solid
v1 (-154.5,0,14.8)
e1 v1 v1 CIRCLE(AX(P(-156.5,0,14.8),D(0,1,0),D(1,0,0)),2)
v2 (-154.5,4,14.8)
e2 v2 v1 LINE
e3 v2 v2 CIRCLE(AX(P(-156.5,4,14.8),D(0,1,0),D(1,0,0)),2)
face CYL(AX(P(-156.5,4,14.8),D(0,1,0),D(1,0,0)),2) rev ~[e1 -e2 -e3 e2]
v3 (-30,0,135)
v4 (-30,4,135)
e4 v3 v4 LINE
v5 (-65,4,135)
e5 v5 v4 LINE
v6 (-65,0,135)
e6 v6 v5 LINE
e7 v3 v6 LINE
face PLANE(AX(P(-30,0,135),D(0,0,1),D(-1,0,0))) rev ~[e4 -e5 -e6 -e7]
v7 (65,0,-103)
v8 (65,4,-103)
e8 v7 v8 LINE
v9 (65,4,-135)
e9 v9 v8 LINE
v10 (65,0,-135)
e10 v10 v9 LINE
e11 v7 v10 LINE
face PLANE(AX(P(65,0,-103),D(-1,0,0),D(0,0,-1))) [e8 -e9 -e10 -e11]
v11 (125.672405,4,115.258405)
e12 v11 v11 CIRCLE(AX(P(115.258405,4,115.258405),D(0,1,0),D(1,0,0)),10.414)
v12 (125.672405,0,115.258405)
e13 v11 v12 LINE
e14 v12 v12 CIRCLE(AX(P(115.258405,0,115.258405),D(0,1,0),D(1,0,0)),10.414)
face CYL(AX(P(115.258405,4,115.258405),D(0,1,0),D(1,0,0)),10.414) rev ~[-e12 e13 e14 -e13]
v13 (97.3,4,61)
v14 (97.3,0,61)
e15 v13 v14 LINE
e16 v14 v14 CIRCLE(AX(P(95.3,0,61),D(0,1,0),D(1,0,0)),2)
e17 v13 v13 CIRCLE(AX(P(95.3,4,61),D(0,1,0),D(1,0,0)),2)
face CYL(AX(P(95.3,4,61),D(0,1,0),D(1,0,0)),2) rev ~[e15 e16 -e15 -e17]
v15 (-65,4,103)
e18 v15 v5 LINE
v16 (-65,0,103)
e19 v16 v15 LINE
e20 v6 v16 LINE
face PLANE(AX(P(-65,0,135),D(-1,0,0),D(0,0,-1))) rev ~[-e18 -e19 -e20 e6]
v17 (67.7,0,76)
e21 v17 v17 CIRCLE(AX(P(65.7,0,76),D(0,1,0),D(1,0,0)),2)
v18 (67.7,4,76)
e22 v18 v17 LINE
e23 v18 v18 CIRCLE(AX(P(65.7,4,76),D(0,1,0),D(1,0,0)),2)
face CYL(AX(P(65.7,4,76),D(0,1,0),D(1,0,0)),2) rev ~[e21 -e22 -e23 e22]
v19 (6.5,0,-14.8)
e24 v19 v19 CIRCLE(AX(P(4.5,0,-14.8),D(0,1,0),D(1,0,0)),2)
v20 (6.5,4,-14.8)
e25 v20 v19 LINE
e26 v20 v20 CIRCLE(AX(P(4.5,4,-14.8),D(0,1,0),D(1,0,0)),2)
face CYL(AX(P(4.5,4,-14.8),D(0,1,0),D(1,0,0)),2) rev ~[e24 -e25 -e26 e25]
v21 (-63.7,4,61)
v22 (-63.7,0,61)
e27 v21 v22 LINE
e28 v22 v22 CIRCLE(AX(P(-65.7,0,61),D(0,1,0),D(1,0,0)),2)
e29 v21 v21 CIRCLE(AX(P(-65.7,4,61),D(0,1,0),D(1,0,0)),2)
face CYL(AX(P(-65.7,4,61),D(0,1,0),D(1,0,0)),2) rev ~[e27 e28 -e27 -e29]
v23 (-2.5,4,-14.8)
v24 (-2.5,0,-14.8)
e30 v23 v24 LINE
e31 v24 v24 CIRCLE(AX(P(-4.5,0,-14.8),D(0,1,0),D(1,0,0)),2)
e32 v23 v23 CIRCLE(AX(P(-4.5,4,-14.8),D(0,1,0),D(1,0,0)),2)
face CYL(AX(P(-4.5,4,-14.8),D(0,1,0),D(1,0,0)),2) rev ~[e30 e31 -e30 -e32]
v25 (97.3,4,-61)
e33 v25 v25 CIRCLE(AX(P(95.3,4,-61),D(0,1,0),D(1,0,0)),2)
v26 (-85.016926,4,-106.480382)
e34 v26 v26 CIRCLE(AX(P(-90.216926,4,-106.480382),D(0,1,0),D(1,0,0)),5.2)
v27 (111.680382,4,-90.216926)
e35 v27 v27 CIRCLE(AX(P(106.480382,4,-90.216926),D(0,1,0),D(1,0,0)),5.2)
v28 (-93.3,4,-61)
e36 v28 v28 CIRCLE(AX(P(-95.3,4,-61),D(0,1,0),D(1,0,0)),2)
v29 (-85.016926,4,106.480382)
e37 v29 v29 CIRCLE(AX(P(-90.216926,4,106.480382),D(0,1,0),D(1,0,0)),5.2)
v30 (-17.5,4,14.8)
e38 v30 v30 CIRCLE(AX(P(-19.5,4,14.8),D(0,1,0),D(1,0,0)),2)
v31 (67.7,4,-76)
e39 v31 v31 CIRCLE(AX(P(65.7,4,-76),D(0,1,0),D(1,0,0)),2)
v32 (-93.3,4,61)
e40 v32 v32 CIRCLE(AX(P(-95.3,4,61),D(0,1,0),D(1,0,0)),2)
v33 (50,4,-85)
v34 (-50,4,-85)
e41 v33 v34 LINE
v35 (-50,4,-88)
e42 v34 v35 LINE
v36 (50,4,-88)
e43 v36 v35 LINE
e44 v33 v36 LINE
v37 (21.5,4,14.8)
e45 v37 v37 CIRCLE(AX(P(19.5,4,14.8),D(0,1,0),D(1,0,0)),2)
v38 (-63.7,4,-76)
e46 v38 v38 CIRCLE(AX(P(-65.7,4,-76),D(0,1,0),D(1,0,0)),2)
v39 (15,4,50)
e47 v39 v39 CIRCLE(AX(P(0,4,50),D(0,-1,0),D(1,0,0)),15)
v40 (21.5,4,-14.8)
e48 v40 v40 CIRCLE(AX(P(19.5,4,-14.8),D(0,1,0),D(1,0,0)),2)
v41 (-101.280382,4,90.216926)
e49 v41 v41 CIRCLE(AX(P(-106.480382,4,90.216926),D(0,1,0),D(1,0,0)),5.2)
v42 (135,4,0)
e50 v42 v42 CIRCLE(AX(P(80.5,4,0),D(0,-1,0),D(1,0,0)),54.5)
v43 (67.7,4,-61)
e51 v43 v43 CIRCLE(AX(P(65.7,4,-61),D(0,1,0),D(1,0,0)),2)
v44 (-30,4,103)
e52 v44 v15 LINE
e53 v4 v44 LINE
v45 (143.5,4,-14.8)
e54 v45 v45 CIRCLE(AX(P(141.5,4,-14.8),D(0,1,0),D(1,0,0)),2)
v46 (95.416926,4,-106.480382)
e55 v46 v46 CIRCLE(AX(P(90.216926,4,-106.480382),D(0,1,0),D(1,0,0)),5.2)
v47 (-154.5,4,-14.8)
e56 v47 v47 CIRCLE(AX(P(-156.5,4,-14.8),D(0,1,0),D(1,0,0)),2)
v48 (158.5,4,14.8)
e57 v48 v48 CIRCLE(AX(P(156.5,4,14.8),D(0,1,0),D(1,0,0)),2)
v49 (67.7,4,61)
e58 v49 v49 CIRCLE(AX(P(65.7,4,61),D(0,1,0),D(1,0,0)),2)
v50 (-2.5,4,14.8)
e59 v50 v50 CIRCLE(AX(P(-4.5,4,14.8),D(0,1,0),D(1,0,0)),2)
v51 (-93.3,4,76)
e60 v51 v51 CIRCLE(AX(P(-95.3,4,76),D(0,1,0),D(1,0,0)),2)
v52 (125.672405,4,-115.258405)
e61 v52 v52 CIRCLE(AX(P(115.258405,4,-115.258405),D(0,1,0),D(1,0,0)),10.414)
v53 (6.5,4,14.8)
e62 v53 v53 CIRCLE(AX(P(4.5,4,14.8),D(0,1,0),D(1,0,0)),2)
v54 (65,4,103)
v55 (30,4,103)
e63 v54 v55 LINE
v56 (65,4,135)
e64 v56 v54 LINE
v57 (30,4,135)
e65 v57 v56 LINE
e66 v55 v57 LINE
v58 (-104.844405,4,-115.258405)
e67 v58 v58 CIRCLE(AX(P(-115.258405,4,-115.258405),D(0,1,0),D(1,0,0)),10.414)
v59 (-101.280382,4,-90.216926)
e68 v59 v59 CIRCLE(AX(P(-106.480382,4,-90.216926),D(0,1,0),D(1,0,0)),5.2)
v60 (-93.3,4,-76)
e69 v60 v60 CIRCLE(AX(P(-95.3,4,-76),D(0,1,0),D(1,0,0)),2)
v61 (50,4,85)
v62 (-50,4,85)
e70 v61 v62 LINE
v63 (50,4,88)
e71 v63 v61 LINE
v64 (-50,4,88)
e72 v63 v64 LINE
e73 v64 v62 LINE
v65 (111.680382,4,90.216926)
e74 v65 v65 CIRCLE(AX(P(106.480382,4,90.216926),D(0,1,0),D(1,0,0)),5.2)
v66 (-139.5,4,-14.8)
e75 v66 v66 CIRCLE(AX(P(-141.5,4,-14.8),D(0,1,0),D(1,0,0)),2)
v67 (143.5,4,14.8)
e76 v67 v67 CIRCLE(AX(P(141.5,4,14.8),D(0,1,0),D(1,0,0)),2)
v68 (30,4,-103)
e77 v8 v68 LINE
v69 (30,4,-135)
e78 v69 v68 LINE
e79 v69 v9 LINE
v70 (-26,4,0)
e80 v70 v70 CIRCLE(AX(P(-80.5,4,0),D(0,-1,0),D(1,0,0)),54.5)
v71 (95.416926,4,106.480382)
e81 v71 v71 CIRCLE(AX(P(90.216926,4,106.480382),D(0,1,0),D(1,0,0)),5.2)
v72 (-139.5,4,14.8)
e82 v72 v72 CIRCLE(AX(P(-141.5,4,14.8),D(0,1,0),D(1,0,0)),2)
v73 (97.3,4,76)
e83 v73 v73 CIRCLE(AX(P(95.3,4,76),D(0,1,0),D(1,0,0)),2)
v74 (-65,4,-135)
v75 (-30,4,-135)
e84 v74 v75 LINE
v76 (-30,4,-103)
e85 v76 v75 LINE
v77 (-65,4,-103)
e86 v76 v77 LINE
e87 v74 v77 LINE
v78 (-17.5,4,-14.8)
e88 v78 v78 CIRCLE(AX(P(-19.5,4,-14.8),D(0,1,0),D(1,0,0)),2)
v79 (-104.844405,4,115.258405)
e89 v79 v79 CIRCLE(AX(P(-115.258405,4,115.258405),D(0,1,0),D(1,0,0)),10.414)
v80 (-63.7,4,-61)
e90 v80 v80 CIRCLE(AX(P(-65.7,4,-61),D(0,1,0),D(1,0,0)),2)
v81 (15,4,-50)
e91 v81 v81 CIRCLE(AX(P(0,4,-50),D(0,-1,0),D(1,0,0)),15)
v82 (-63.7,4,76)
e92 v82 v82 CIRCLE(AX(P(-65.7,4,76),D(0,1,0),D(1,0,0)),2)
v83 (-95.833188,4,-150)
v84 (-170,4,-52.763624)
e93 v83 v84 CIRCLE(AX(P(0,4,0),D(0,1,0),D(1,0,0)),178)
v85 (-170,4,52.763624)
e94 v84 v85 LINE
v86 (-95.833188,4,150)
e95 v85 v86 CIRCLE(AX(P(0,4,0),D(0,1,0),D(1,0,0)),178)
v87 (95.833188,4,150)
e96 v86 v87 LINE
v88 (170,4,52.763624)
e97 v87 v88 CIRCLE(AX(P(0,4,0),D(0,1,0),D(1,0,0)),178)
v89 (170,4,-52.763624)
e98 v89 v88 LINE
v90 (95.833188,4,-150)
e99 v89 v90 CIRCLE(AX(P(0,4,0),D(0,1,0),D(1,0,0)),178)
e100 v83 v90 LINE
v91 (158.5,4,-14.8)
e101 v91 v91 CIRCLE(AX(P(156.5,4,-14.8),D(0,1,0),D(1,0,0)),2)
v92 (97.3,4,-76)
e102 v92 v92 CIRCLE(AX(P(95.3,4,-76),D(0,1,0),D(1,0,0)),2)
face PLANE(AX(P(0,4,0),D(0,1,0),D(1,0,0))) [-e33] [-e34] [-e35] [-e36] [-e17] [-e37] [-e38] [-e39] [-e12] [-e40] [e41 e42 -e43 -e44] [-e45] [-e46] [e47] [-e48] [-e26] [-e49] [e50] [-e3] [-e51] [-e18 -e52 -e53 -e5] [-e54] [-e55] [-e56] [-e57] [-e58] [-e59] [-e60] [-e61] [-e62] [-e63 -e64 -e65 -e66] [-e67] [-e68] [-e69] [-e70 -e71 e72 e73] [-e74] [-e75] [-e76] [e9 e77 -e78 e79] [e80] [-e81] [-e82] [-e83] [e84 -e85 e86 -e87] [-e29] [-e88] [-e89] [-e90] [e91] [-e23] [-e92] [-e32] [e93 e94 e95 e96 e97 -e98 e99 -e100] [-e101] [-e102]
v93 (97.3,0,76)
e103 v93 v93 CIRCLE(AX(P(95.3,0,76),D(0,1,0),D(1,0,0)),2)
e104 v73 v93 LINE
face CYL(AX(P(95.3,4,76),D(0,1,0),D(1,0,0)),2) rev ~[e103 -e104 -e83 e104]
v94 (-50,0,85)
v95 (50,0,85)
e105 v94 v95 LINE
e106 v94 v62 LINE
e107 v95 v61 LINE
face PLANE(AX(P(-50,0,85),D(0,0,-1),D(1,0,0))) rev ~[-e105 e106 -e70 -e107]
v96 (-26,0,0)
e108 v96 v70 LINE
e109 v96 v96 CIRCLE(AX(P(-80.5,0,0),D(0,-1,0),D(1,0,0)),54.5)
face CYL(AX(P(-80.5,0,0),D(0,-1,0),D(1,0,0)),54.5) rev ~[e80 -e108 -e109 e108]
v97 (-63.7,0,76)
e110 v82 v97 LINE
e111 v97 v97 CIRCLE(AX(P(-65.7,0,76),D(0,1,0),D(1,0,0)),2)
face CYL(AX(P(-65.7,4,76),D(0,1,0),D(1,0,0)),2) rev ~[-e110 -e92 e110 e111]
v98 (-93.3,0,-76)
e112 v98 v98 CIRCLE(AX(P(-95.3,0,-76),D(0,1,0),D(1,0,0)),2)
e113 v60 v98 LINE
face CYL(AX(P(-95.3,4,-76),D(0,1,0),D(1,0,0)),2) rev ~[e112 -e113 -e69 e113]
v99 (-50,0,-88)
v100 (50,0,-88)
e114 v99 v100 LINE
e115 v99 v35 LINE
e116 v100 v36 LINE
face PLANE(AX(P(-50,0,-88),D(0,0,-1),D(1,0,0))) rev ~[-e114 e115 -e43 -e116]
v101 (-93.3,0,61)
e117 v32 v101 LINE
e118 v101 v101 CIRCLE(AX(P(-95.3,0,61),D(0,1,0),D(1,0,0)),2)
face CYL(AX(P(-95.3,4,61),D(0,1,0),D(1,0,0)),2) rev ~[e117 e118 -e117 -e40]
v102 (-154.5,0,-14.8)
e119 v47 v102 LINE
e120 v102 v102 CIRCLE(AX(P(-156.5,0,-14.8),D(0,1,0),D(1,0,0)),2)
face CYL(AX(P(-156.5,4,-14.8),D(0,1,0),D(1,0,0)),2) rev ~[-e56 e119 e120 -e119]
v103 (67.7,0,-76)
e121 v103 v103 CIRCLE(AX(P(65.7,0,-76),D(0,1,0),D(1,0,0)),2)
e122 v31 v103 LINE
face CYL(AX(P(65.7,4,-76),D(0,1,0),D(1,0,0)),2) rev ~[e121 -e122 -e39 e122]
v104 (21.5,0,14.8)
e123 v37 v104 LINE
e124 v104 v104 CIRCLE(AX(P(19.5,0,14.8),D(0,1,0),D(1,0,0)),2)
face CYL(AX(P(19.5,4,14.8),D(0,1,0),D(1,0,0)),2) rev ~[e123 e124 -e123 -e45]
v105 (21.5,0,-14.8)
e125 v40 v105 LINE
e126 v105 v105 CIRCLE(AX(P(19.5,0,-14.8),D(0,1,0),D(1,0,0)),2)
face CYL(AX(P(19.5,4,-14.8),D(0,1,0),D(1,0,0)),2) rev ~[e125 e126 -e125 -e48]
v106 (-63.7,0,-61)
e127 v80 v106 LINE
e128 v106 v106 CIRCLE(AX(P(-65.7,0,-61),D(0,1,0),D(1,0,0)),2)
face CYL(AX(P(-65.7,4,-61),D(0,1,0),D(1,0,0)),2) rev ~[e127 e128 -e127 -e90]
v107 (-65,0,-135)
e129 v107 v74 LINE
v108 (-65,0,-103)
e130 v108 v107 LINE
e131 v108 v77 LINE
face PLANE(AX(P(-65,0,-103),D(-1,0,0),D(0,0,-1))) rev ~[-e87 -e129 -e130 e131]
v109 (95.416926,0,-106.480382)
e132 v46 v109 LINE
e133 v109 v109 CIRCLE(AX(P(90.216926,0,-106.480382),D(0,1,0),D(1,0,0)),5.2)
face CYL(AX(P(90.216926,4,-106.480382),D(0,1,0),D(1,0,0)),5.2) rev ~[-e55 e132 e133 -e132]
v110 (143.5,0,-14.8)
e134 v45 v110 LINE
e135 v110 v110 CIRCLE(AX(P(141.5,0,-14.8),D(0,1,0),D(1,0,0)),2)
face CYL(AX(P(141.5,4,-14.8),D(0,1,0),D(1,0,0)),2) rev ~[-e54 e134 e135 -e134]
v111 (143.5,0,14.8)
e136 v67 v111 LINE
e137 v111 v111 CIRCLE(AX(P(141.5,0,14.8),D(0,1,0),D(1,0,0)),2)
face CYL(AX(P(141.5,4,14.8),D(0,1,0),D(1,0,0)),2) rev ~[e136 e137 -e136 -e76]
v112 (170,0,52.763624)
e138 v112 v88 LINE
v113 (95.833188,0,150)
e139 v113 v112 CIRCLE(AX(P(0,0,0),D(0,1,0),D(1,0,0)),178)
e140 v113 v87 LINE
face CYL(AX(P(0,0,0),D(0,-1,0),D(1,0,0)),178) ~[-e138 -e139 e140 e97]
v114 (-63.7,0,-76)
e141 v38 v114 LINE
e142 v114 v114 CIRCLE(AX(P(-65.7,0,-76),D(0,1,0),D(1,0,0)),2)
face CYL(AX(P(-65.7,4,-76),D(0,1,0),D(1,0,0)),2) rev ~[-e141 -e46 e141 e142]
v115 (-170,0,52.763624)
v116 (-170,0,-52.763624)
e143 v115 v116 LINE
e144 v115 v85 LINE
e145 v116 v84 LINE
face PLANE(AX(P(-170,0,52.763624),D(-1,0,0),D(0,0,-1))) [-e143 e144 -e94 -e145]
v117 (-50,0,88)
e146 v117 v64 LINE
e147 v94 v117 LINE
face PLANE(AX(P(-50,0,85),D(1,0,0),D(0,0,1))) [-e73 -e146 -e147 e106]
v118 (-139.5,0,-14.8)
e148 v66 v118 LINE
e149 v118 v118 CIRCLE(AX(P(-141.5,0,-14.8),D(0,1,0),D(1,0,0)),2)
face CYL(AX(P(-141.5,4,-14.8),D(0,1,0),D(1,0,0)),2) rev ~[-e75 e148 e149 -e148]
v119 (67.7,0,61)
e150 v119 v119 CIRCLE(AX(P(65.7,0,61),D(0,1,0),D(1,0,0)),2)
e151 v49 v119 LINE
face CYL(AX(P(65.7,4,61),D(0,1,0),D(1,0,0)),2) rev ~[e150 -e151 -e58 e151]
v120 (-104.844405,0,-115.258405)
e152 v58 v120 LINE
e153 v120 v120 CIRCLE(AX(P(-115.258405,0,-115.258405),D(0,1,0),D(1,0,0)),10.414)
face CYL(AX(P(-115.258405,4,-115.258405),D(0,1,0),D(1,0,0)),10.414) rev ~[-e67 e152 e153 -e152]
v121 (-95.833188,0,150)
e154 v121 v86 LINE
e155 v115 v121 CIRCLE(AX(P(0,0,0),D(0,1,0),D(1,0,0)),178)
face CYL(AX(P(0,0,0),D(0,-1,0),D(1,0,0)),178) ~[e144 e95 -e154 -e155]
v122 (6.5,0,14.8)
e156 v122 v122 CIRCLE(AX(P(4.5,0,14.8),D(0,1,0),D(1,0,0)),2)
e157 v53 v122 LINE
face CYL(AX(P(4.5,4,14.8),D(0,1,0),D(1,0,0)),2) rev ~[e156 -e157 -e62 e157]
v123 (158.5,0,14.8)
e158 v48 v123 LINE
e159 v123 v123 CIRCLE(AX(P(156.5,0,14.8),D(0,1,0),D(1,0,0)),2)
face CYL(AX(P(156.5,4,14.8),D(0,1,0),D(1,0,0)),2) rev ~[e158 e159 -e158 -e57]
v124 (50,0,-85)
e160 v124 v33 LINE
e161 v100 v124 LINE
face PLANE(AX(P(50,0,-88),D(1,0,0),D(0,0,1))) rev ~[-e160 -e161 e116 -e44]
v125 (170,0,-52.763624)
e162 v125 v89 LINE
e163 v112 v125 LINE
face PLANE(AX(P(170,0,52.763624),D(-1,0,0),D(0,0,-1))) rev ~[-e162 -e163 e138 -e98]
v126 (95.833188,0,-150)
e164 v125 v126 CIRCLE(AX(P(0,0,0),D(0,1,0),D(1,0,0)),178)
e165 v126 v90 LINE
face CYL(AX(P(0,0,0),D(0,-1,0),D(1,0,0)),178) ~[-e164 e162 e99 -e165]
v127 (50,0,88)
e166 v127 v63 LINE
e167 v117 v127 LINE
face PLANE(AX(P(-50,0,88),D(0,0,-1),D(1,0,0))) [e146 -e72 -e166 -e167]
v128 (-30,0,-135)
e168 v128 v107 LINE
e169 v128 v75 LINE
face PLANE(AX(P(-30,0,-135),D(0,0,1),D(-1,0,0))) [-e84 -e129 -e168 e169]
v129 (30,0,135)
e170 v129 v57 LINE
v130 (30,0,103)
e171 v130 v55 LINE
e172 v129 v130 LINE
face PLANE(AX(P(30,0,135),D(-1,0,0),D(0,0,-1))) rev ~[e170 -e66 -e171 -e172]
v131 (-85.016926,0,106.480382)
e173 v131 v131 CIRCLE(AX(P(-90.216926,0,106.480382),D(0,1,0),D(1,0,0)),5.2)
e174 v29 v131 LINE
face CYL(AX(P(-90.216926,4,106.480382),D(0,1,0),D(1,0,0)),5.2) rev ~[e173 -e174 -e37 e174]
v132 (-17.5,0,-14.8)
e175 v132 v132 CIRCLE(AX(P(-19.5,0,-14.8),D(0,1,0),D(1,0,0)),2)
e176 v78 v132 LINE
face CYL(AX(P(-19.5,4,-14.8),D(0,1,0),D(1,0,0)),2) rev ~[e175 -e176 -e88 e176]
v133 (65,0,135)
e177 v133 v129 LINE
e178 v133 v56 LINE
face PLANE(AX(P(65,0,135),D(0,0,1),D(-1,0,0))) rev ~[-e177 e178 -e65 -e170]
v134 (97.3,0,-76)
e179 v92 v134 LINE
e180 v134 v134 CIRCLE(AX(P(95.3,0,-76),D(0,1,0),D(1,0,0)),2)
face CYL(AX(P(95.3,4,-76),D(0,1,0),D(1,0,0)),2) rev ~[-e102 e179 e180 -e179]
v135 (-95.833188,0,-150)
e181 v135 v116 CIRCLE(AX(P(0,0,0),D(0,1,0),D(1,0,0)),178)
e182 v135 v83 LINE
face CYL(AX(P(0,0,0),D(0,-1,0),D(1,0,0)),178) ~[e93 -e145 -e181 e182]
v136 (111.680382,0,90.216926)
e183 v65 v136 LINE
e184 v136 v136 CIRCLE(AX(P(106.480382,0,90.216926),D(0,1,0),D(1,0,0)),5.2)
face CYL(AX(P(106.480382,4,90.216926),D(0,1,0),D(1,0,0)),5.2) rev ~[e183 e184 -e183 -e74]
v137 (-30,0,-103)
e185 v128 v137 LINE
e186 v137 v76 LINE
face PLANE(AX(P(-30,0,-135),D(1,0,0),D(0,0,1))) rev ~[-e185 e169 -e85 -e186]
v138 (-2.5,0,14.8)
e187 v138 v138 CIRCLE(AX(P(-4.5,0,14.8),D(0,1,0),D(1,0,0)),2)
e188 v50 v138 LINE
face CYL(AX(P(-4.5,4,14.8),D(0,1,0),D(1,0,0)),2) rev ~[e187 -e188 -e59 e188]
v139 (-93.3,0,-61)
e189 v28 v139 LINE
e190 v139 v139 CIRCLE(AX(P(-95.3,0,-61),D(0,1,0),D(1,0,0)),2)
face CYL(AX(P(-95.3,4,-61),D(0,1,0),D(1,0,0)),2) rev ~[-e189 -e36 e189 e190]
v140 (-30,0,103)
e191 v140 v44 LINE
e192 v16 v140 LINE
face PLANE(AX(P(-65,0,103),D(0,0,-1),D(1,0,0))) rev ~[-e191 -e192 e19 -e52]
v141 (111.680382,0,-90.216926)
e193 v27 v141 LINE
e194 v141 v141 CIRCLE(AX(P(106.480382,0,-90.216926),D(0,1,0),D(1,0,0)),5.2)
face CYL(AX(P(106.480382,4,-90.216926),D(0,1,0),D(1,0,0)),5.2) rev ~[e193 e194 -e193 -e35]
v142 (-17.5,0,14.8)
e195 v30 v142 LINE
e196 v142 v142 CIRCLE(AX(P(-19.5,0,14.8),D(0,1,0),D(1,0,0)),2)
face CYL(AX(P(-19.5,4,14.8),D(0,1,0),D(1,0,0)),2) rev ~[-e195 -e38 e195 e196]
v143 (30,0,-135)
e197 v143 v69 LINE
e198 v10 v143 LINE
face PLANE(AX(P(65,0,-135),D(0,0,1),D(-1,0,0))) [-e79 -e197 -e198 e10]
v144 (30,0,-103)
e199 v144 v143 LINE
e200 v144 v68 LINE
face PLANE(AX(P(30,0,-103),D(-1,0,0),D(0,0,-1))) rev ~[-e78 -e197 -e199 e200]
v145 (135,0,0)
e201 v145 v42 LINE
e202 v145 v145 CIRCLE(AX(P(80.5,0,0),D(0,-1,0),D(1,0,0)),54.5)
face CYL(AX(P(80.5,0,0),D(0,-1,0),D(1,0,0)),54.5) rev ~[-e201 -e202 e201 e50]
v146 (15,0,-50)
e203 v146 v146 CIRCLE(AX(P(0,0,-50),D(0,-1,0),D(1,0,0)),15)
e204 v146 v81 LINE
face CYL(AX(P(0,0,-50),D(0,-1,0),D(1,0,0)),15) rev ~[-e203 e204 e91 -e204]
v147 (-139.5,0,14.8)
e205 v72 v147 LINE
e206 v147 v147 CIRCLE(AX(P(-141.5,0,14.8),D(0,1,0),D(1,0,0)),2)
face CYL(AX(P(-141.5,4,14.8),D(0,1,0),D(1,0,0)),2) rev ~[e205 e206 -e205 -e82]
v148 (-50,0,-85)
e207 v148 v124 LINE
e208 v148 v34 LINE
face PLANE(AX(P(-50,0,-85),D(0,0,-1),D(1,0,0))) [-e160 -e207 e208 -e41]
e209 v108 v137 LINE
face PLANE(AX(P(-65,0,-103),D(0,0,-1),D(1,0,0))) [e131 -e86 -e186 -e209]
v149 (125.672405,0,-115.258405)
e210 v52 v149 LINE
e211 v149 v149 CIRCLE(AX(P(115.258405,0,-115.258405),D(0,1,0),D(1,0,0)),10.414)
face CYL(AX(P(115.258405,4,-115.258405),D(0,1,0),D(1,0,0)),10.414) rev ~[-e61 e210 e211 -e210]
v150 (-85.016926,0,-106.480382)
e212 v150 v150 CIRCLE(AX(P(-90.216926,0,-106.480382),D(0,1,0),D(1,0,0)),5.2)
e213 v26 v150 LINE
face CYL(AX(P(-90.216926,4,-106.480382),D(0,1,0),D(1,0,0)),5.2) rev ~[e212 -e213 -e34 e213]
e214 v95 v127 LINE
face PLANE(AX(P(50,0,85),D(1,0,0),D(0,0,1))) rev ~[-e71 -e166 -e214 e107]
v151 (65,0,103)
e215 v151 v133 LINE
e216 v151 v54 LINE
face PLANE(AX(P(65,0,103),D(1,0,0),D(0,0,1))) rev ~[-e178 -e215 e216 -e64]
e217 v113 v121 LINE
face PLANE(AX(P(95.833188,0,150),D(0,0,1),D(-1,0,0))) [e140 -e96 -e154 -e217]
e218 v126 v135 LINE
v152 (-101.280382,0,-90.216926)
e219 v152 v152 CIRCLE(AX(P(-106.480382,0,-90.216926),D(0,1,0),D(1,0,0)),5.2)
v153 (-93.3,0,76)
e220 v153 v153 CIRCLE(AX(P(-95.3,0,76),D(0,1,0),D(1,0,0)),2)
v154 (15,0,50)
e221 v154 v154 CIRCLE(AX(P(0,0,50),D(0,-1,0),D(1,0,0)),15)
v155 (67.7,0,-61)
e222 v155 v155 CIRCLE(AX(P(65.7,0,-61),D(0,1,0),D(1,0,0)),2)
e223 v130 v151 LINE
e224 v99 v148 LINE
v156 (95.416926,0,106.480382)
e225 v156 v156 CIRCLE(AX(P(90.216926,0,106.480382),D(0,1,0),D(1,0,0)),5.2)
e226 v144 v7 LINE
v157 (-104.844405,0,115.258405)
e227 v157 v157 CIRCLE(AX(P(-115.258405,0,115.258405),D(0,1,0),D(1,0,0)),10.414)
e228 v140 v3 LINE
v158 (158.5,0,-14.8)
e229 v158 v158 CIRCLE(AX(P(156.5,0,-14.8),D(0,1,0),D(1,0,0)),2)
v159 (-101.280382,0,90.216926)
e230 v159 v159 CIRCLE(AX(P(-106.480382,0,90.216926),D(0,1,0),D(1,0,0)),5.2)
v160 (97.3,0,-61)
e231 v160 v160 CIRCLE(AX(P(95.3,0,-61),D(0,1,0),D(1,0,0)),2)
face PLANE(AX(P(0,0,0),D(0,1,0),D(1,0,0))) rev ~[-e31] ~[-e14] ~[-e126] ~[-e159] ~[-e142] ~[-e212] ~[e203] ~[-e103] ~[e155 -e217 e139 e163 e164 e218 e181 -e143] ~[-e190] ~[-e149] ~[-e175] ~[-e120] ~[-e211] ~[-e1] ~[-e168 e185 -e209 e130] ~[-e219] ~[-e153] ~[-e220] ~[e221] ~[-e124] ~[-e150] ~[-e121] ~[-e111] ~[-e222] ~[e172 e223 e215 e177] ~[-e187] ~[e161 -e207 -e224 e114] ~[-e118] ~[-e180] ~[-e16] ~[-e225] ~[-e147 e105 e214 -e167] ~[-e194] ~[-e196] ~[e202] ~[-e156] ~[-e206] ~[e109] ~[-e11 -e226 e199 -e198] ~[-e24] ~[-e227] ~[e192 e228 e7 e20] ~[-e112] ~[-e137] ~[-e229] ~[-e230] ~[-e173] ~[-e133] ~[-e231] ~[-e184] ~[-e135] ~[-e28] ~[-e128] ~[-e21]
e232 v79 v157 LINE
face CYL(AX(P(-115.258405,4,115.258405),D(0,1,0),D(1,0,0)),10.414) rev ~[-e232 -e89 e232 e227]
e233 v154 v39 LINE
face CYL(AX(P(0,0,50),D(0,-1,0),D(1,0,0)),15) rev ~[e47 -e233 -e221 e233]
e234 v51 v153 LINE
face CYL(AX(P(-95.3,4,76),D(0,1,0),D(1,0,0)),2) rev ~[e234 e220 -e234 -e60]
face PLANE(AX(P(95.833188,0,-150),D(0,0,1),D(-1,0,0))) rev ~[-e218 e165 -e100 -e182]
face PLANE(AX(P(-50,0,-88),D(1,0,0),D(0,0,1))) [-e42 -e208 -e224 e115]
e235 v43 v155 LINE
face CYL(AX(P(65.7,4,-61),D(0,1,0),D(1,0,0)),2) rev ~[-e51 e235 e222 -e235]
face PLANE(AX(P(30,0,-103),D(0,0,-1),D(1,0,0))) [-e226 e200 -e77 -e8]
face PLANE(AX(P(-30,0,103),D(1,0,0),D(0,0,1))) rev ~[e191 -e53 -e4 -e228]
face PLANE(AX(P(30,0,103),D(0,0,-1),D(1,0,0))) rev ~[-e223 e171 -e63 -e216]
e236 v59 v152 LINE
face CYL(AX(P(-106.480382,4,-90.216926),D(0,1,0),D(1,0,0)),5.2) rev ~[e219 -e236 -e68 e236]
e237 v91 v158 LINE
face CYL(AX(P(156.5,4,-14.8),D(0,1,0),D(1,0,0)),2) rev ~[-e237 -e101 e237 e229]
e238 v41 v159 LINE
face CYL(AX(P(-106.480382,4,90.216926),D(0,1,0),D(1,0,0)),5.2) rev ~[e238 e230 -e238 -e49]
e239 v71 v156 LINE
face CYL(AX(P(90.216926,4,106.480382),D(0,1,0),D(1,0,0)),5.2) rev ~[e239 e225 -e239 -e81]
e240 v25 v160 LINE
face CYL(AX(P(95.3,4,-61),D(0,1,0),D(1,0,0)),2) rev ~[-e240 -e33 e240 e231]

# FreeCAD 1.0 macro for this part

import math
import FreeCAD as App
import Part
import Sketcher
from FreeCAD import Vector

doc = App.newDocument("Part")
body = doc.addObject("PartDesign::Body", "Body")

# Sketch on XZ plane
sketch1 = body.newObject("Sketcher::SketchObject", "Sketch")
sketch1.AttachmentSupport = (doc.getObject("XZ_Plane"), [""])
sketch1.MapMode = "FlatFace"
sketch1.addGeometry(Part.Circle(Vector(0, 0, 0), Vector(0, 0, 1), 178), False)
sketch1.addConstraint(Sketcher.Constraint("Coincident", 0, 3, -1, 1))
sketch1.addConstraint(Sketcher.Constraint("Diameter", 0, 356.0))
pad1 = body.newObject("PartDesign::Pad", "Pad")
pad1.Profile = sketch1
pad1.Length = 4
pad1.Reversed = True

# Sketch on XZ plane
sketch2 = body.newObject("Sketcher::SketchObject", "Sketch001")
sketch2.AttachmentSupport = (doc.getObject("XZ_Plane"), [""])
sketch2.MapMode = "FlatFace"
sketch2.AttachmentOffset = App.Placement(Vector(0, 0, -4), App.Rotation())
sketch2.addGeometry(Part.Circle(Vector(115.258405, -115.258405, 0), Vector(0, 0, 1), 10.414), False)
sketch2.addGeometry(Part.Circle(Vector(-90.216926, 106.480382, 0), Vector(0, 0, 1), 5.2), False)
sketch2.addGeometry(Part.Circle(Vector(-106.480382, 90.216926, 0), Vector(0, 0, 1), 5.2), False)
sketch2.addGeometry(Part.Circle(Vector(115.258405, 115.258405, 0), Vector(0, 0, 1), 10.414), False)
sketch2.addGeometry(Part.Circle(Vector(-115.258405, 115.258405, 0), Vector(0, 0, 1), 10.414), False)
sketch2.addGeometry(Part.Circle(Vector(-115.258405, -115.258405, 0), Vector(0, 0, 1), 10.414), False)
sketch2.addGeometry(Part.Circle(Vector(-90.216926, -106.480382, 0), Vector(0, 0, 1), 5.2), False)
sketch2.addGeometry(Part.Circle(Vector(-106.480382, -90.216926, 0), Vector(0, 0, 1), 5.2), False)
sketch2.addGeometry(Part.Circle(Vector(106.480382, -90.216926, 0), Vector(0, 0, 1), 5.2), False)
sketch2.addGeometry(Part.Circle(Vector(90.216926, -106.480382, 0), Vector(0, 0, 1), 5.2), False)
sketch2.addGeometry(Part.Circle(Vector(90.216926, 106.480382, 0), Vector(0, 0, 1), 5.2), False)
sketch2.addGeometry(Part.Circle(Vector(106.480382, 90.216926, 0), Vector(0, 0, 1), 5.2), False)
sketch2.addConstraint(Sketcher.Constraint("Equal", 1, 2))
sketch2.addConstraint(Sketcher.Constraint("Equal", 0, 3))
sketch2.addConstraint(Sketcher.Constraint("Equal", 3, 4))
sketch2.addConstraint(Sketcher.Constraint("Equal", 4, 5))
sketch2.addConstraint(Sketcher.Constraint("Equal", 2, 6))
sketch2.addConstraint(Sketcher.Constraint("Equal", 6, 7))
sketch2.addConstraint(Sketcher.Constraint("Equal", 7, 8))
sketch2.addConstraint(Sketcher.Constraint("Equal", 8, 9))
sketch2.addConstraint(Sketcher.Constraint("Equal", 9, 10))
sketch2.addConstraint(Sketcher.Constraint("Equal", 10, 11))
sketch2.addConstraint(Sketcher.Constraint("Symmetric", 0, 3, 4, 3, -1, 1))
sketch2.addConstraint(Sketcher.Constraint("Symmetric", 3, 3, 5, 3, -1, 1))
sketch2.addConstraint(Sketcher.Constraint("Symmetric", 2, 3, 8, 3, -1, 1))
sketch2.addConstraint(Sketcher.Constraint("Symmetric", 1, 3, 9, 3, -1, 1))
sketch2.addConstraint(Sketcher.Constraint("Symmetric", 6, 3, 10, 3, -1, 1))
sketch2.addConstraint(Sketcher.Constraint("Symmetric", 7, 3, 11, 3, -1, 1))
sketch2.addConstraint(Sketcher.Constraint("Symmetric", 3, 3, 4, 3, -2))
sketch2.addConstraint(Sketcher.Constraint("Symmetric", 7, 3, 8, 3, -2))
sketch2.addConstraint(Sketcher.Constraint("Symmetric", 6, 3, 9, 3, -2))
sketch2.addConstraint(Sketcher.Constraint("Diameter", 1, 10.4))
sketch2.addConstraint(Sketcher.Constraint("Diameter", 0, 20.828))
sketch2.addConstraint(Sketcher.Constraint("DistanceY", -1, 1, 1, 3, 106.480382))
sketch2.addConstraint(Sketcher.Constraint("DistanceX", 2, 3, -1, 1, 106.480382))
sketch2.addConstraint(Sketcher.Constraint("DistanceX", 1, 3, 0, 3, 205.475331))
sketch2.addConstraint(Sketcher.Constraint("DistanceY", 0, 3, 2, 3, 205.475331))
sketch2.addConstraint(Sketcher.Constraint("DistanceY", 2, 3, 3, 3, 25.04148))
sketch2.addConstraint(Sketcher.Constraint("DistanceX", 4, 3, 1, 3, 25.04148))
pocket1 = body.newObject("PartDesign::Pocket", "Pocket")
pocket1.Profile = sketch2
pocket1.Length = 10
pocket1.Reversed = True

# Sketch on XZ plane
sketch3 = body.newObject("Sketcher::SketchObject", "Sketch002")
sketch3.AttachmentSupport = (doc.getObject("XZ_Plane"), [""])
sketch3.MapMode = "FlatFace"
sketch3.addGeometry(Part.Circle(Vector(80.5, 0, 0), Vector(0, 0, 1), 54.5), False)
sketch3.addGeometry(Part.Circle(Vector(-80.5, 0, 0), Vector(0, 0, 1), 54.5), False)
sketch3.addConstraint(Sketcher.Constraint("Equal", 0, 1))
sketch3.addConstraint(Sketcher.Constraint("Symmetric", 0, 3, 1, 3, -1, 1))
sketch3.addConstraint(Sketcher.Constraint("PointOnObject", 0, 3, -1))
sketch3.addConstraint(Sketcher.Constraint("Diameter", 0, 109.0))
sketch3.addConstraint(Sketcher.Constraint("DistanceX", 1, 3, 0, 3, 161.0))
pocket2 = body.newObject("PartDesign::Pocket", "Pocket001")
pocket2.Profile = sketch3
pocket2.Length = 10

# Sketch on XZ plane
sketch4 = body.newObject("Sketcher::SketchObject", "Sketch003")
sketch4.AttachmentSupport = (doc.getObject("XZ_Plane"), [""])
sketch4.MapMode = "FlatFace"
sketch4.AttachmentOffset = App.Placement(Vector(0, 0, -4), App.Rotation())
sketch4.addGeometry(Part.Circle(Vector(-19.5, 14.8, 0), Vector(0, 0, 1), 2), False)
sketch4.addGeometry(Part.Circle(Vector(-4.5, 14.8, 0), Vector(0, 0, 1), 2), False)
sketch4.addGeometry(Part.Circle(Vector(-4.5, -14.8, 0), Vector(0, 0, 1), 2), False)
sketch4.addGeometry(Part.Circle(Vector(-19.5, -14.8, 0), Vector(0, 0, 1), 2), False)
sketch4.addGeometry(Part.Circle(Vector(4.5, 14.8, 0), Vector(0, 0, 1), 2), False)
sketch4.addGeometry(Part.Circle(Vector(19.5, 14.8, 0), Vector(0, 0, 1), 2), False)
sketch4.addGeometry(Part.Circle(Vector(19.5, -14.8, 0), Vector(0, 0, 1), 2), False)
sketch4.addGeometry(Part.Circle(Vector(4.5, -14.8, 0), Vector(0, 0, 1), 2), False)
sketch4.addGeometry(Part.Circle(Vector(-65.7, 61, 0), Vector(0, 0, 1), 2), False)
sketch4.addGeometry(Part.Circle(Vector(-65.7, 76, 0), Vector(0, 0, 1), 2), False)
sketch4.addGeometry(Part.Circle(Vector(-95.3, 61, 0), Vector(0, 0, 1), 2), False)
sketch4.addGeometry(Part.Circle(Vector(-95.3, 76, 0), Vector(0, 0, 1), 2), False)
sketch4.addGeometry(Part.Circle(Vector(-141.5, 14.8, 0), Vector(0, 0, 1), 2), False)
sketch4.addGeometry(Part.Circle(Vector(-156.5, 14.8, 0), Vector(0, 0, 1), 2), False)
sketch4.addGeometry(Part.Circle(Vector(-141.5, -14.8, 0), Vector(0, 0, 1), 2), False)
sketch4.addGeometry(Part.Circle(Vector(-156.5, -14.8, 0), Vector(0, 0, 1), 2), False)
sketch4.addGeometry(Part.Circle(Vector(-95.3, -61, 0), Vector(0, 0, 1), 2), False)
sketch4.addGeometry(Part.Circle(Vector(-95.3, -76, 0), Vector(0, 0, 1), 2), False)
sketch4.addGeometry(Part.Circle(Vector(-65.7, -61, 0), Vector(0, 0, 1), 2), False)
sketch4.addGeometry(Part.Circle(Vector(-65.7, -76, 0), Vector(0, 0, 1), 2), False)
sketch4.addGeometry(Part.Circle(Vector(95.3, -76, 0), Vector(0, 0, 1), 2), False)
sketch4.addGeometry(Part.Circle(Vector(95.3, -61, 0), Vector(0, 0, 1), 2), False)
sketch4.addGeometry(Part.Circle(Vector(65.7, -76, 0), Vector(0, 0, 1), 2), False)
sketch4.addGeometry(Part.Circle(Vector(65.7, -61, 0), Vector(0, 0, 1), 2), False)
sketch4.addGeometry(Part.Circle(Vector(156.5, 14.8, 0), Vector(0, 0, 1), 2), False)
sketch4.addGeometry(Part.Circle(Vector(141.5, 14.8, 0), Vector(0, 0, 1), 2), False)
sketch4.addGeometry(Part.Circle(Vector(156.5, -14.8, 0), Vector(0, 0, 1), 2), False)
sketch4.addGeometry(Part.Circle(Vector(141.5, -14.8, 0), Vector(0, 0, 1), 2), False)
sketch4.addGeometry(Part.Circle(Vector(65.7, 76, 0), Vector(0, 0, 1), 2), False)
sketch4.addGeometry(Part.Circle(Vector(65.7, 61, 0), Vector(0, 0, 1), 2), False)
sketch4.addGeometry(Part.Circle(Vector(95.3, 76, 0), Vector(0, 0, 1), 2), False)
sketch4.addGeometry(Part.Circle(Vector(95.3, 61, 0), Vector(0, 0, 1), 2), False)
sketch4.addConstraint(Sketcher.Constraint("Equal", 0, 1))
sketch4.addConstraint(Sketcher.Constraint("Equal", 1, 2))
sketch4.addConstraint(Sketcher.Constraint("Equal", 2, 3))
sketch4.addConstraint(Sketcher.Constraint("Equal", 3, 4))
sketch4.addConstraint(Sketcher.Constraint("Equal", 4, 5))
sketch4.addConstraint(Sketcher.Constraint("Equal", 5, 6))
sketch4.addConstraint(Sketcher.Constraint("Equal", 6, 7))
sketch4.addConstraint(Sketcher.Constraint("Equal", 7, 8))
sketch4.addConstraint(Sketcher.Constraint("Equal", 8, 9))
sketch4.addConstraint(Sketcher.Constraint("Equal", 9, 10))
sketch4.addConstraint(Sketcher.Constraint("Equal", 10, 11))
sketch4.addConstraint(Sketcher.Constraint("Equal", 11, 12))
sketch4.addConstraint(Sketcher.Constraint("Equal", 12, 13))
sketch4.addConstraint(Sketcher.Constraint("Equal", 13, 14))
sketch4.addConstraint(Sketcher.Constraint("Equal", 14, 15))
sketch4.addConstraint(Sketcher.Constraint("Equal", 15, 16))
sketch4.addConstraint(Sketcher.Constraint("Equal", 16, 17))
sketch4.addConstraint(Sketcher.Constraint("Equal", 17, 18))
sketch4.addConstraint(Sketcher.Constraint("Equal", 18, 19))
sketch4.addConstraint(Sketcher.Constraint("Equal", 19, 20))
sketch4.addConstraint(Sketcher.Constraint("Equal", 20, 21))
sketch4.addConstraint(Sketcher.Constraint("Equal", 21, 22))
sketch4.addConstraint(Sketcher.Constraint("Equal", 22, 23))
sketch4.addConstraint(Sketcher.Constraint("Equal", 23, 24))
sketch4.addConstraint(Sketcher.Constraint("Equal", 24, 25))
sketch4.addConstraint(Sketcher.Constraint("Equal", 25, 26))
sketch4.addConstraint(Sketcher.Constraint("Equal", 26, 27))
sketch4.addConstraint(Sketcher.Constraint("Equal", 27, 28))
sketch4.addConstraint(Sketcher.Constraint("Equal", 28, 29))
sketch4.addConstraint(Sketcher.Constraint("Equal", 29, 30))
sketch4.addConstraint(Sketcher.Constraint("Equal", 30, 31))
sketch4.addConstraint(Sketcher.Constraint("Symmetric", 2, 3, 4, 3, -1, 1))
sketch4.addConstraint(Sketcher.Constraint("Symmetric", 3, 3, 5, 3, -1, 1))
sketch4.addConstraint(Sketcher.Constraint("Symmetric", 0, 3, 6, 3, -1, 1))
sketch4.addConstraint(Sketcher.Constraint("Symmetric", 1, 3, 7, 3, -1, 1))
sketch4.addConstraint(Sketcher.Constraint("Symmetric", 11, 3, 20, 3, -1, 1))
sketch4.addConstraint(Sketcher.Constraint("Symmetric", 10, 3, 21, 3, -1, 1))
sketch4.addConstraint(Sketcher.Constraint("Symmetric", 9, 3, 22, 3, -1, 1))
sketch4.addConstraint(Sketcher.Constraint("Symmetric", 8, 3, 23, 3, -1, 1))
sketch4.addConstraint(Sketcher.Constraint("Symmetric", 15, 3, 24, 3, -1, 1))
sketch4.addConstraint(Sketcher.Constraint("Symmetric", 14, 3, 25, 3, -1, 1))
sketch4.addConstraint(Sketcher.Constraint("Symmetric", 13, 3, 26, 3, -1, 1))
sketch4.addConstraint(Sketcher.Constraint("Symmetric", 12, 3, 27, 3, -1, 1))
sketch4.addConstraint(Sketcher.Constraint("Symmetric", 19, 3, 28, 3, -1, 1))
sketch4.addConstraint(Sketcher.Constraint("Symmetric", 18, 3, 29, 3, -1, 1))
sketch4.addConstraint(Sketcher.Constraint("Symmetric", 17, 3, 30, 3, -1, 1))
sketch4.addConstraint(Sketcher.Constraint("Symmetric", 16, 3, 31, 3, -1, 1))
sketch4.addConstraint(Sketcher.Constraint("Symmetric", 1, 3, 4, 3, -2))
sketch4.addConstraint(Sketcher.Constraint("Symmetric", 0, 3, 5, 3, -2))
sketch4.addConstraint(Sketcher.Constraint("Symmetric", 17, 3, 20, 3, -2))
sketch4.addConstraint(Sketcher.Constraint("Symmetric", 16, 3, 21, 3, -2))
sketch4.addConstraint(Sketcher.Constraint("Symmetric", 19, 3, 22, 3, -2))
sketch4.addConstraint(Sketcher.Constraint("Symmetric", 18, 3, 23, 3, -2))
sketch4.addConstraint(Sketcher.Constraint("Symmetric", 13, 3, 24, 3, -2))
sketch4.addConstraint(Sketcher.Constraint("Symmetric", 12, 3, 25, 3, -2))
sketch4.addConstraint(Sketcher.Constraint("Horizontal", 0, 3, 1, 3))
sketch4.addConstraint(Sketcher.Constraint("Horizontal", 8, 3, 10, 3))
sketch4.addConstraint(Sketcher.Constraint("Horizontal", 9, 3, 11, 3))
sketch4.addConstraint(Sketcher.Constraint("Horizontal", 5, 3, 12, 3))
sketch4.addConstraint(Sketcher.Constraint("Horizontal", 12, 3, 13, 3))
sketch4.addConstraint(Sketcher.Constraint("Vertical", 8, 3, 9, 3))
sketch4.addConstraint(Sketcher.Constraint("Vertical", 10, 3, 11, 3))
sketch4.addConstraint(Sketcher.Constraint("Diameter", 0, 4.0))
sketch4.addConstraint(Sketcher.Constraint("DistanceY", -1, 1, 8, 3, 61.0))
sketch4.addConstraint(Sketcher.Constraint("DistanceY", -1, 1, 9, 3, 76.0))
sketch4.addConstraint(Sketcher.Constraint("DistanceX", 0, 3, 1, 3, 15.0))
sketch4.addConstraint(Sketcher.Constraint("DistanceX", 1, 3, 4, 3, 9.0))
sketch4.addConstraint(Sketcher.Constraint("DistanceX", 12, 3, 0, 3, 122.0))
sketch4.addConstraint(Sketcher.Constraint("DistanceX", 13, 3, 12, 3, 15.0))
sketch4.addConstraint(Sketcher.Constraint("DistanceY", -1, 1, 0, 3, 14.8))
sketch4.addConstraint(Sketcher.Constraint("DistanceX", 8, 3, -1, 1, 65.7))
sketch4.addConstraint(Sketcher.Constraint("DistanceX", 10, 3, -1, 1, 95.3))
pocket3 = body.newObject("PartDesign::Pocket", "Pocket002")
pocket3.Profile = sketch4
pocket3.Length = 10
pocket3.Reversed = True

# Sketch on XZ plane
sketch5 = body.newObject("Sketcher::SketchObject", "Sketch004")
sketch5.AttachmentSupport = (doc.getObject("XZ_Plane"), [""])
sketch5.MapMode = "FlatFace"
sketch5.addGeometry(Part.LineSegment(Vector(-95.833188, 150, 0), Vector(95.833188, 150, 0)), False)
sketch5.addGeometry(Part.ArcOfCircle(Part.Circle(Vector(0, 0, 0), Vector(0, 0, 1), 178), math.radians(57.425982), math.radians(122.574018)), False)
sketch5.addGeometry(Part.LineSegment(Vector(170, 52.763624, 0), Vector(170, -52.763624, 0)), False)
sketch5.addGeometry(Part.ArcOfCircle(Part.Circle(Vector(0, 0, 0), Vector(0, 0, 1), 178), math.radians(-17.242997), math.radians(17.242997)), False)
sketch5.addGeometry(Part.ArcOfCircle(Part.Circle(Vector(0, 0, 0), Vector(0, 0, 1), 178), math.radians(-122.574018), math.radians(-57.425982)), False)
sketch5.addGeometry(Part.LineSegment(Vector(95.833188, -150, 0), Vector(-95.833188, -150, 0)), False)
sketch5.addGeometry(Part.ArcOfCircle(Part.Circle(Vector(0, 0, 0), Vector(0, 0, 1), 178), math.radians(162.757003), math.radians(197.242997)), False)
sketch5.addGeometry(Part.LineSegment(Vector(-170, -52.763624, 0), Vector(-170, 52.763624, 0)), False)
sketch5.addConstraint(Sketcher.Constraint("Coincident", 0, 1, 1, 2))
sketch5.addConstraint(Sketcher.Constraint("Coincident", 1, 1, 0, 2))
sketch5.addConstraint(Sketcher.Constraint("Coincident", 2, 1, 3, 2))
sketch5.addConstraint(Sketcher.Constraint("Coincident", 3, 1, 2, 2))
sketch5.addConstraint(Sketcher.Constraint("Coincident", 4, 1, 5, 2))
sketch5.addConstraint(Sketcher.Constraint("Coincident", 5, 1, 4, 2))
sketch5.addConstraint(Sketcher.Constraint("Coincident", 6, 1, 7, 2))
sketch5.addConstraint(Sketcher.Constraint("Coincident", 7, 1, 6, 2))
sketch5.addConstraint(Sketcher.Constraint("Horizontal", 0))
sketch5.addConstraint(Sketcher.Constraint("Vertical", 2))
sketch5.addConstraint(Sketcher.Constraint("Horizontal", 5))
sketch5.addConstraint(Sketcher.Constraint("Vertical", 7))
sketch5.addConstraint(Sketcher.Constraint("Coincident", 1, 3, -1, 1))
sketch5.addConstraint(Sketcher.Constraint("Coincident", 3, 3, -1, 1))
sketch5.addConstraint(Sketcher.Constraint("Coincident", 4, 3, -1, 1))
sketch5.addConstraint(Sketcher.Constraint("Coincident", 6, 3, -1, 1))
sketch5.addConstraint(Sketcher.Constraint("Equal", 1, 3))
sketch5.addConstraint(Sketcher.Constraint("Equal", 3, 4))
sketch5.addConstraint(Sketcher.Constraint("Equal", 4, 6))
sketch5.addConstraint(Sketcher.Constraint("Horizontal", 2, 1, 6, 1))
sketch5.addConstraint(Sketcher.Constraint("Vertical", 0, 1, 4, 1))
sketch5.addConstraint(Sketcher.Constraint("Radius", 1, 178.0))
sketch5.addConstraint(Sketcher.Constraint("DistanceY", -1, 1, 0, 1, 150.0))
sketch5.addConstraint(Sketcher.Constraint("DistanceX", -1, 1, 2, 1, 170.0))
pocket4 = body.newObject("PartDesign::Pocket", "Pocket003")
pocket4.Profile = sketch5
pocket4.Length = 10

# Sketch on XZ plane
sketch6 = body.newObject("Sketcher::SketchObject", "Sketch005")
sketch6.AttachmentSupport = (doc.getObject("XZ_Plane"), [""])
sketch6.MapMode = "FlatFace"
sketch6.addGeometry(Part.LineSegment(Vector(-50, -85, 0), Vector(-50, -88, 0)), False)
sketch6.addGeometry(Part.LineSegment(Vector(-50, -88, 0), Vector(50, -88, 0)), False)
sketch6.addGeometry(Part.LineSegment(Vector(50, -88, 0), Vector(50, -85, 0)), False)
sketch6.addGeometry(Part.LineSegment(Vector(50, -85, 0), Vector(-50, -85, 0)), False)
sketch6.addGeometry(Part.LineSegment(Vector(30, -135, 0), Vector(65, -135, 0)), False)
sketch6.addGeometry(Part.LineSegment(Vector(65, -135, 0), Vector(65, -103, 0)), False)
sketch6.addGeometry(Part.LineSegment(Vector(65, -103, 0), Vector(30, -103, 0)), False)
sketch6.addGeometry(Part.LineSegment(Vector(30, -103, 0), Vector(30, -135, 0)), False)
sketch6.addGeometry(Part.LineSegment(Vector(-65, -103, 0), Vector(-65, -135, 0)), False)
sketch6.addGeometry(Part.LineSegment(Vector(-65, -135, 0), Vector(-30, -135, 0)), False)
sketch6.addGeometry(Part.LineSegment(Vector(-30, -135, 0), Vector(-30, -103, 0)), False)
sketch6.addGeometry(Part.LineSegment(Vector(-30, -103, 0), Vector(-65, -103, 0)), False)
sketch6.addGeometry(Part.LineSegment(Vector(-50, 88, 0), Vector(-50, 85, 0)), False)
sketch6.addGeometry(Part.LineSegment(Vector(-50, 85, 0), Vector(50, 85, 0)), False)
sketch6.addGeometry(Part.LineSegment(Vector(50, 85, 0), Vector(50, 88, 0)), False)
sketch6.addGeometry(Part.LineSegment(Vector(50, 88, 0), Vector(-50, 88, 0)), False)
sketch6.addGeometry(Part.LineSegment(Vector(-65, 103, 0), Vector(-30, 103, 0)), False)
sketch6.addGeometry(Part.LineSegment(Vector(-30, 103, 0), Vector(-30, 135, 0)), False)
sketch6.addGeometry(Part.LineSegment(Vector(-30, 135, 0), Vector(-65, 135, 0)), False)
sketch6.addGeometry(Part.LineSegment(Vector(-65, 135, 0), Vector(-65, 103, 0)), False)
sketch6.addGeometry(Part.LineSegment(Vector(65, 103, 0), Vector(65, 135, 0)), False)
sketch6.addGeometry(Part.LineSegment(Vector(65, 135, 0), Vector(30, 135, 0)), False)
sketch6.addGeometry(Part.LineSegment(Vector(30, 135, 0), Vector(30, 103, 0)), False)
sketch6.addGeometry(Part.LineSegment(Vector(30, 103, 0), Vector(65, 103, 0)), False)
sketch6.addConstraint(Sketcher.Constraint("Coincident", 0, 2, 1, 1))
sketch6.addConstraint(Sketcher.Constraint("Coincident", 1, 2, 2, 1))
sketch6.addConstraint(Sketcher.Constraint("Coincident", 2, 2, 3, 1))
sketch6.addConstraint(Sketcher.Constraint("Coincident", 3, 2, 0, 1))
sketch6.addConstraint(Sketcher.Constraint("Coincident", 4, 2, 5, 1))
sketch6.addConstraint(Sketcher.Constraint("Coincident", 5, 2, 6, 1))
sketch6.addConstraint(Sketcher.Constraint("Coincident", 6, 2, 7, 1))
sketch6.addConstraint(Sketcher.Constraint("Coincident", 7, 2, 4, 1))
sketch6.addConstraint(Sketcher.Constraint("Coincident", 8, 2, 9, 1))
sketch6.addConstraint(Sketcher.Constraint("Coincident", 9, 2, 10, 1))
sketch6.addConstraint(Sketcher.Constraint("Coincident", 10, 2, 11, 1))
sketch6.addConstraint(Sketcher.Constraint("Coincident", 11, 2, 8, 1))
sketch6.addConstraint(Sketcher.Constraint("Coincident", 12, 2, 13, 1))
sketch6.addConstraint(Sketcher.Constraint("Coincident", 13, 2, 14, 1))
sketch6.addConstraint(Sketcher.Constraint("Coincident", 14, 2, 15, 1))
sketch6.addConstraint(Sketcher.Constraint("Coincident", 15, 2, 12, 1))
sketch6.addConstraint(Sketcher.Constraint("Coincident", 16, 2, 17, 1))
sketch6.addConstraint(Sketcher.Constraint("Coincident", 17, 2, 18, 1))
sketch6.addConstraint(Sketcher.Constraint("Coincident", 18, 2, 19, 1))
sketch6.addConstraint(Sketcher.Constraint("Coincident", 19, 2, 16, 1))
sketch6.addConstraint(Sketcher.Constraint("Coincident", 20, 2, 21, 1))
sketch6.addConstraint(Sketcher.Constraint("Coincident", 21, 2, 22, 1))
sketch6.addConstraint(Sketcher.Constraint("Coincident", 22, 2, 23, 1))
sketch6.addConstraint(Sketcher.Constraint("Coincident", 23, 2, 20, 1))
sketch6.addConstraint(Sketcher.Constraint("Vertical", 0))
sketch6.addConstraint(Sketcher.Constraint("Horizontal", 1))
sketch6.addConstraint(Sketcher.Constraint("Vertical", 2))
sketch6.addConstraint(Sketcher.Constraint("Horizontal", 3))
sketch6.addConstraint(Sketcher.Constraint("Horizontal", 4))
sketch6.addConstraint(Sketcher.Constraint("Vertical", 5))
sketch6.addConstraint(Sketcher.Constraint("Horizontal", 6))
sketch6.addConstraint(Sketcher.Constraint("Vertical", 7))
sketch6.addConstraint(Sketcher.Constraint("Vertical", 8))
sketch6.addConstraint(Sketcher.Constraint("Horizontal", 9))
sketch6.addConstraint(Sketcher.Constraint("Vertical", 10))
sketch6.addConstraint(Sketcher.Constraint("Horizontal", 11))
sketch6.addConstraint(Sketcher.Constraint("Vertical", 12))
sketch6.addConstraint(Sketcher.Constraint("Horizontal", 13))
sketch6.addConstraint(Sketcher.Constraint("Vertical", 14))
sketch6.addConstraint(Sketcher.Constraint("Horizontal", 15))
sketch6.addConstraint(Sketcher.Constraint("Horizontal", 16))
sketch6.addConstraint(Sketcher.Constraint("Vertical", 17))
sketch6.addConstraint(Sketcher.Constraint("Horizontal", 18))
sketch6.addConstraint(Sketcher.Constraint("Vertical", 19))
sketch6.addConstraint(Sketcher.Constraint("Vertical", 20))
sketch6.addConstraint(Sketcher.Constraint("Horizontal", 21))
sketch6.addConstraint(Sketcher.Constraint("Vertical", 22))
sketch6.addConstraint(Sketcher.Constraint("Horizontal", 23))
sketch6.addConstraint(Sketcher.Constraint("Symmetric", 2, 2, 12, 2, -1, 1))
sketch6.addConstraint(Sketcher.Constraint("Symmetric", 0, 2, 14, 2, -1, 1))
sketch6.addConstraint(Sketcher.Constraint("Symmetric", 6, 2, 16, 2, -1, 1))
sketch6.addConstraint(Sketcher.Constraint("Symmetric", 4, 2, 18, 2, -1, 1))
sketch6.addConstraint(Sketcher.Constraint("Symmetric", 8, 2, 20, 2, -1, 1))
sketch6.addConstraint(Sketcher.Constraint("Symmetric", 10, 2, 22, 2, -1, 1))
sketch6.addConstraint(Sketcher.Constraint("Symmetric", 4, 2, 8, 2, -2))
sketch6.addConstraint(Sketcher.Constraint("Symmetric", 6, 2, 10, 2, -2))
sketch6.addConstraint(Sketcher.Constraint("Vertical", 3, 2, 12, 2))
sketch6.addConstraint(Sketcher.Constraint("DistanceX", 1, 1, 1, 2, 100.0))
sketch6.addConstraint(Sketcher.Constraint("DistanceX", 4, 1, 4, 2, 35.0))
sketch6.addConstraint(Sketcher.Constraint("DistanceY", 0, 2, 0, 1, 3.0))
sketch6.addConstraint(Sketcher.Constraint("DistanceY", 5, 1, 5, 2, 32.0))
sketch6.addConstraint(Sketcher.Constraint("DistanceY", 0, 2, -1, 1, 88.0))
sketch6.addConstraint(Sketcher.Constraint("DistanceX", -1, 1, 4, 2, 65.0))
sketch6.addConstraint(Sketcher.Constraint("DistanceY", 4, 2, -1, 1, 135.0))
pocket5 = body.newObject("PartDesign::Pocket", "Pocket004")
pocket5.Profile = sketch6
pocket5.Length = 10

# Sketch on XZ plane
sketch7 = body.newObject("Sketcher::SketchObject", "Sketch006")
sketch7.AttachmentSupport = (doc.getObject("XZ_Plane"), [""])
sketch7.MapMode = "FlatFace"
sketch7.addGeometry(Part.Circle(Vector(0, -50, 0), Vector(0, 0, 1), 15), False)
sketch7.addGeometry(Part.Circle(Vector(0, 50, 0), Vector(0, 0, 1), 15), False)
sketch7.addConstraint(Sketcher.Constraint("Equal", 0, 1))
sketch7.addConstraint(Sketcher.Constraint("Symmetric", 0, 3, 1, 3, -1, 1))
sketch7.addConstraint(Sketcher.Constraint("PointOnObject", 0, 3, -2))
sketch7.addConstraint(Sketcher.Constraint("Diameter", 0, 30.0))
sketch7.addConstraint(Sketcher.Constraint("DistanceY", 0, 3, -1, 1, 50.0))
pocket6 = body.newObject("PartDesign::Pocket", "Pocket005")
pocket6.Profile = sketch7
pocket6.Length = 10

doc.recompute()
